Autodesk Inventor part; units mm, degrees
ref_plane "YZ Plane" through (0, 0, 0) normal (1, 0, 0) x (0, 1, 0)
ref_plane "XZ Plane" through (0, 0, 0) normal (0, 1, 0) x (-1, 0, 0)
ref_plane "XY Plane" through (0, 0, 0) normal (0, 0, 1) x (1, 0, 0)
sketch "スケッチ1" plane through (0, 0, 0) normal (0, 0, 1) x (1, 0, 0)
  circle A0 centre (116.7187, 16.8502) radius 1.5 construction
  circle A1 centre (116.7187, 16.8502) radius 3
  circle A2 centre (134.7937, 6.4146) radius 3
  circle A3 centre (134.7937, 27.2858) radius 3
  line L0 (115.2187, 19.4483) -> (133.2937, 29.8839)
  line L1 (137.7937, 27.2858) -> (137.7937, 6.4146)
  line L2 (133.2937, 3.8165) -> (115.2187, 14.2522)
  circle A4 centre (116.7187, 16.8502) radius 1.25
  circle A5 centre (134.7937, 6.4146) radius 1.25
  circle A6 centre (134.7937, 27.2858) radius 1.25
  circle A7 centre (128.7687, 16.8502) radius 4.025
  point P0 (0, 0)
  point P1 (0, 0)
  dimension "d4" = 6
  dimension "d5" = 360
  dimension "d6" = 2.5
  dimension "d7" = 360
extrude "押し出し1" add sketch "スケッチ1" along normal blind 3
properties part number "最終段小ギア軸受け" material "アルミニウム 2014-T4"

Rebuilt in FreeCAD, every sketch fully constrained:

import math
import FreeCAD as App
import Part
import Sketcher
from FreeCAD import Vector
Q = App.Units.Quantity

doc = App.newDocument("Part")
body = doc.addObject("PartDesign::Body", "Body")

# Sketch on XY plane
sketch1 = body.newObject("Sketcher::SketchObject", "Sketch")
sketch1.AttachmentSupport = (doc.getObject("XY_Plane"), [""])
sketch1.MapMode = "FlatFace"
sketch1.addGeometry(Part.ArcOfCircle(Part.Circle(Vector(116.7187, 16.8502, 0), Vector(0, 0, 1), 3), math.radians(119.999773), math.radians(239.999272)), False)
sketch1.addGeometry(Part.LineSegment(Vector(115.2187, 14.2522, 0), Vector(133.2937, 3.8165, 0)), False)
sketch1.addGeometry(Part.ArcOfCircle(Part.Circle(Vector(134.7937, 6.4146, 0), Vector(0, 0, 1), 3), math.radians(-119.999773), math.radians(0)), False)
sketch1.addGeometry(Part.LineSegment(Vector(137.7937, 6.4146, 0), Vector(137.7937, 27.2858, 0)), False)
sketch1.addGeometry(Part.ArcOfCircle(Part.Circle(Vector(134.7937, 27.2858, 0), Vector(0, 0, 1), 3), math.radians(0), math.radians(119.999773)), False)
sketch1.addGeometry(Part.LineSegment(Vector(133.2937, 29.8839, 0), Vector(115.2187, 19.4483, 0)), False)
sketch1.addGeometry(Part.Circle(Vector(116.7187, 16.8502, 0), Vector(0, 0, 1), 1.25), False)
sketch1.addGeometry(Part.Circle(Vector(128.7687, 16.8502, 0), Vector(0, 0, 1), 4.025), False)
sketch1.addGeometry(Part.Circle(Vector(134.7937, 27.2858, 0), Vector(0, 0, 1), 1.25), False)
sketch1.addGeometry(Part.Circle(Vector(134.7937, 6.4146, 0), Vector(0, 0, 1), 1.25), False)
sketch1.addConstraint(Sketcher.Constraint("Tangent", 0, 2, 1, 1))
sketch1.addConstraint(Sketcher.Constraint("Tangent", 1, 2, 2, 1))
sketch1.addConstraint(Sketcher.Constraint("Tangent", 2, 2, 3, 1))
sketch1.addConstraint(Sketcher.Constraint("Tangent", 3, 2, 4, 1))
sketch1.addConstraint(Sketcher.Constraint("Tangent", 4, 2, 5, 1))
sketch1.addConstraint(Sketcher.Constraint("Tangent", 5, 2, 0, 1))
sketch1.addConstraint(Sketcher.Constraint("Vertical", 3))
sketch1.addConstraint(Sketcher.Constraint("Coincident", 6, 3, 0, 3))
sketch1.addConstraint(Sketcher.Constraint("Coincident", 8, 3, 4, 3))
sketch1.addConstraint(Sketcher.Constraint("Coincident", 9, 3, 2, 3))
sketch1.addConstraint(Sketcher.Constraint("Equal", 0, 2))
sketch1.addConstraint(Sketcher.Constraint("Equal", 2, 4))
sketch1.addConstraint(Sketcher.Constraint("Equal", 6, 8))
sketch1.addConstraint(Sketcher.Constraint("Equal", 8, 9))
sketch1.addConstraint(Sketcher.Constraint("Horizontal", 6, 3, 7, 3))
sketch1.addConstraint(Sketcher.Constraint("Vertical", 1, 2, 4, 2))
sketch1.addConstraint(Sketcher.Constraint("Radius", 0, 3.0))
sketch1.addConstraint(Sketcher.Constraint("Diameter", 6, 2.5))
sketch1.addConstraint(Sketcher.Constraint("Diameter", 7, 8.05))
sketch1.addConstraint(Sketcher.Constraint("Angle", 1, Q("-30.0002 deg")))
sketch1.addConstraint(Sketcher.Constraint("DistanceX", 0, 3, 7, 3, 12.05))
sketch1.addConstraint(Sketcher.Constraint("DistanceY", 3, 1, 3, 2, 20.8712))
sketch1.addConstraint(Sketcher.Constraint("DistanceY", -1, 1, 4, 2, 29.884))
sketch1.addConstraint(Sketcher.Constraint("DistanceX", -1, 1, 0, 3, 116.7187))
pad1 = body.newObject("PartDesign::Pad", "Pad")
pad1.Profile = sketch1
pad1.Length = 3

doc.recompute()
